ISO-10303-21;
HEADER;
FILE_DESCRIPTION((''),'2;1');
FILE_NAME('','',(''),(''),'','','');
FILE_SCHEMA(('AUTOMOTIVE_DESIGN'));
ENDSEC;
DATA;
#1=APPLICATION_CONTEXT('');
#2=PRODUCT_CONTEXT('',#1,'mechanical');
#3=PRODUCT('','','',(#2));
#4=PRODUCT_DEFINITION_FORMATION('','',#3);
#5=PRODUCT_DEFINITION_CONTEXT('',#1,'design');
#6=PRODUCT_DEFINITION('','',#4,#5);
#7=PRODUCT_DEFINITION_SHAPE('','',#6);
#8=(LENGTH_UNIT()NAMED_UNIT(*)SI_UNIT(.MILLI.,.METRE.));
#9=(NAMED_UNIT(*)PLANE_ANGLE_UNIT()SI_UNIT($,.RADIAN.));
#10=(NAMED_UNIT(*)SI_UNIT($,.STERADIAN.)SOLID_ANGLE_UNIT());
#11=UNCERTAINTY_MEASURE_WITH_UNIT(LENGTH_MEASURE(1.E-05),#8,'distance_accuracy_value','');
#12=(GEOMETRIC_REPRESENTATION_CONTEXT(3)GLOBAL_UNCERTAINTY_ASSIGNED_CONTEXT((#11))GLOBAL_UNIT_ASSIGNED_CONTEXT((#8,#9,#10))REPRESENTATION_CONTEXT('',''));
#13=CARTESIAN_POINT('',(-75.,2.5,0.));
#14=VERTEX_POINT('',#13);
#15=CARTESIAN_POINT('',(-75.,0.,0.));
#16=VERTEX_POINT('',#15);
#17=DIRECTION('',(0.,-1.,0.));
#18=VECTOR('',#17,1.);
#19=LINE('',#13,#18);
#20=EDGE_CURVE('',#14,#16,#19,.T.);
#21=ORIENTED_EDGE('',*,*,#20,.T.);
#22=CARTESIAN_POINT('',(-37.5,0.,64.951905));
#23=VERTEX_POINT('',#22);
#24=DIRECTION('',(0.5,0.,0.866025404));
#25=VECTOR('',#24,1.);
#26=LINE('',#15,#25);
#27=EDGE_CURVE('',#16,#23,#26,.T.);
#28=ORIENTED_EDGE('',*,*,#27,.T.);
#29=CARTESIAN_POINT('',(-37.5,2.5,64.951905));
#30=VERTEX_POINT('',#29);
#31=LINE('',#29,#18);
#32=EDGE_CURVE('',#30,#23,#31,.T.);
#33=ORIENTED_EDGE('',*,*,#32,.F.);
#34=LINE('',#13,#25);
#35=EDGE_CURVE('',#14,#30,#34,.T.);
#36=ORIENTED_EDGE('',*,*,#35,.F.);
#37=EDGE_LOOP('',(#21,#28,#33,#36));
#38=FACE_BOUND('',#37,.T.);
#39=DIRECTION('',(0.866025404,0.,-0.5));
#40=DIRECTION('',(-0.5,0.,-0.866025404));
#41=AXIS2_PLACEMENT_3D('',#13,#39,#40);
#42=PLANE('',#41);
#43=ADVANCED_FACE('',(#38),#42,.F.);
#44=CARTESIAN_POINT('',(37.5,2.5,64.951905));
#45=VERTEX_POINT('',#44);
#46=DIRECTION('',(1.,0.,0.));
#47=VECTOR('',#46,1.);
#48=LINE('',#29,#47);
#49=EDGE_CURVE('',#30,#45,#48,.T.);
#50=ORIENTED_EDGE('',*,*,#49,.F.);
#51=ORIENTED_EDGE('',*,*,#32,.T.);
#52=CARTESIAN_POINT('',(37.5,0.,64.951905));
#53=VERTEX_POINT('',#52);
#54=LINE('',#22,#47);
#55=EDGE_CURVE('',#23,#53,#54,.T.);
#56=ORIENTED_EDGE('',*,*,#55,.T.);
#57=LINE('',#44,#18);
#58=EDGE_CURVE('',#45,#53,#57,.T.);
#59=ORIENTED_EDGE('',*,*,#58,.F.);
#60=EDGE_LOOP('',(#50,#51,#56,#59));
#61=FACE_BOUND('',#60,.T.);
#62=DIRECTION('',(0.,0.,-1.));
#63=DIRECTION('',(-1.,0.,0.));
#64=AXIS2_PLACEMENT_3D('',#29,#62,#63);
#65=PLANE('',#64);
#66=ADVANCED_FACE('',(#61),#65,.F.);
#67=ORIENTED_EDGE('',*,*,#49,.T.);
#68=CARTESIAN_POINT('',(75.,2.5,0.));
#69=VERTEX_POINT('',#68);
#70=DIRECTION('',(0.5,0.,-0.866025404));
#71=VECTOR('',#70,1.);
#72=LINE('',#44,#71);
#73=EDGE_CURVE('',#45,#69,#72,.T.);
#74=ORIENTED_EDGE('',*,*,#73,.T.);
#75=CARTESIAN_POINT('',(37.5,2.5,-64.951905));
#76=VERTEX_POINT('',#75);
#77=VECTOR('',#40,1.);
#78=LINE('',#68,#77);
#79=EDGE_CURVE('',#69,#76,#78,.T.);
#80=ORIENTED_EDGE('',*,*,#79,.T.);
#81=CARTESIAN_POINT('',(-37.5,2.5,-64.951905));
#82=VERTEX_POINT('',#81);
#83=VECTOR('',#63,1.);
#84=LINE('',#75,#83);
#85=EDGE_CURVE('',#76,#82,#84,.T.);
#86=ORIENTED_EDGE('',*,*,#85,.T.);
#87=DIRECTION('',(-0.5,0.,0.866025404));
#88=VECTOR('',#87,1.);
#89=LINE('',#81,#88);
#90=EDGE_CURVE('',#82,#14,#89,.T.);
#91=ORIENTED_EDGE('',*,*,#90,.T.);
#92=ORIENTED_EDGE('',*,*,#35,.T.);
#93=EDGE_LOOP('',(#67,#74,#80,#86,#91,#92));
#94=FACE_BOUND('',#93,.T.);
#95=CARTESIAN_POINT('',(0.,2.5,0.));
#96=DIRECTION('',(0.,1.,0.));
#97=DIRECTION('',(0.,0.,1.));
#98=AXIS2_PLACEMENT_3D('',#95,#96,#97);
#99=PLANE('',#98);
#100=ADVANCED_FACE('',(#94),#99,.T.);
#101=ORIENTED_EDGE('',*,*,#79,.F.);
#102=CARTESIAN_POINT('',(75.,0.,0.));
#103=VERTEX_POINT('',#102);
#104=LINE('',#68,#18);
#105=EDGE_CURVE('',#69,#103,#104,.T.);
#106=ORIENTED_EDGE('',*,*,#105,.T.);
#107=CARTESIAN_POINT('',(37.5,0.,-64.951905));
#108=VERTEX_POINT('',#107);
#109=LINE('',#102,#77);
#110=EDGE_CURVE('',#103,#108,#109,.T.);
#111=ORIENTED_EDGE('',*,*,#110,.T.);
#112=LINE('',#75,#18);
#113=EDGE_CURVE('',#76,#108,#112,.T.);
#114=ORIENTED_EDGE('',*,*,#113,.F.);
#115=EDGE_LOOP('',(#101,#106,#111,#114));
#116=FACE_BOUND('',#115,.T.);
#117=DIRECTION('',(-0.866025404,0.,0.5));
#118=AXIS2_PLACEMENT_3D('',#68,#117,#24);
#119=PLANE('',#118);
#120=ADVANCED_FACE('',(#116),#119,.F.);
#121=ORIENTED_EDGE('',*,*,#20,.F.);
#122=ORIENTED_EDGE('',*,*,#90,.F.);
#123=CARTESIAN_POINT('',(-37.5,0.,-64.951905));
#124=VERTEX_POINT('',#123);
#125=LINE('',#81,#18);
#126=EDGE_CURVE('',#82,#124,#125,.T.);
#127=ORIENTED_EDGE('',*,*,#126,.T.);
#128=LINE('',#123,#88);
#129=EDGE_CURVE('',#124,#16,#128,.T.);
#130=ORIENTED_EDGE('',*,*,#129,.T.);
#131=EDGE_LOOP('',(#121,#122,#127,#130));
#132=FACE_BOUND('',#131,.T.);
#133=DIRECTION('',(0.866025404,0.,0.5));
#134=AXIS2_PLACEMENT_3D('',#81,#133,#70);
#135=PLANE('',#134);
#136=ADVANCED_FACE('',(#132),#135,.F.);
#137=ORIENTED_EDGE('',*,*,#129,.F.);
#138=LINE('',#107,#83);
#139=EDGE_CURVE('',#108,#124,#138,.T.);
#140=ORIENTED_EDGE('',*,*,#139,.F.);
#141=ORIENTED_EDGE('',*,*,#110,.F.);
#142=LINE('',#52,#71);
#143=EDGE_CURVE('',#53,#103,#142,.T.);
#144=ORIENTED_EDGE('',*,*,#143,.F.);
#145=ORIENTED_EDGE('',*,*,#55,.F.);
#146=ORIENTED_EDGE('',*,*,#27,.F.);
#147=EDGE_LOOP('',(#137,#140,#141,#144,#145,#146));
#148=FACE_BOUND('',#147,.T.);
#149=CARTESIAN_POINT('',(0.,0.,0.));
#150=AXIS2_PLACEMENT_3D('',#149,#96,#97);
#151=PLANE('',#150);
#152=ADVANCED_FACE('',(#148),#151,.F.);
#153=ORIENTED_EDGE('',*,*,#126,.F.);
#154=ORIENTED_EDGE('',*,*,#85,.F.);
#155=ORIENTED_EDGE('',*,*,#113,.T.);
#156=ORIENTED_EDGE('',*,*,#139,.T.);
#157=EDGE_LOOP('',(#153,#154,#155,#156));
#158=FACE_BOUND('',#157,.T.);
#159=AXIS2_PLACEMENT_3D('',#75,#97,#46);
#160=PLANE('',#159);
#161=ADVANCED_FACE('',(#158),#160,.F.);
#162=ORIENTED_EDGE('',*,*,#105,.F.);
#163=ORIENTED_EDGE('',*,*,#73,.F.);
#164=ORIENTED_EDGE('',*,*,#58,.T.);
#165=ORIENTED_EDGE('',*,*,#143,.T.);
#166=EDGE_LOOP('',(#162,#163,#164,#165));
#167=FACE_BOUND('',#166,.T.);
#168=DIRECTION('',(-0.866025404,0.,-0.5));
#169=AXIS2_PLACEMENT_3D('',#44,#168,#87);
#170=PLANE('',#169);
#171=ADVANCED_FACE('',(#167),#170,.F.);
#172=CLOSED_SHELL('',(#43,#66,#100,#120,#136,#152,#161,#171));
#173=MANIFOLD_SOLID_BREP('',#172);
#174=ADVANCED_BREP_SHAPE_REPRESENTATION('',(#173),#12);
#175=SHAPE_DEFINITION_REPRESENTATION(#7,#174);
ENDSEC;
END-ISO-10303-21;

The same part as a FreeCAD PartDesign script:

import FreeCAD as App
import Part
import Sketcher

V = App.Vector
Q = App.Units.Quantity

doc = App.newDocument("Part")
body = doc.addObject("PartDesign::Body", "Body")

sketch1 = doc.addObject("Sketcher::SketchObject", "Sketch")
body.addObject(sketch1)
sketch1.AttachmentSupport = (doc.XZ_Plane, [""])
sketch1.MapMode = "FlatFace"
sketch1.addGeometry(Part.LineSegment(V(75, 0, 0), V(38, -65, 0)), False)
sketch1.addGeometry(Part.LineSegment(V(38, -65, 0), V(-38, -65, 0)), False)
sketch1.addGeometry(Part.LineSegment(V(-38, -65, 0), V(-75, 0, 0)), False)
sketch1.addGeometry(Part.LineSegment(V(-75, 0, 0), V(-38, 65, 0)), False)
sketch1.addGeometry(Part.LineSegment(V(-38, 65, 0), V(38, 65, 0)), False)
sketch1.addGeometry(Part.LineSegment(V(38, 65, 0), V(75, 0, 0)), False)
sketch1.addConstraint(Sketcher.Constraint("Coincident", 0, 2, 1, 1))
sketch1.addConstraint(Sketcher.Constraint("Coincident", 1, 2, 2, 1))
sketch1.addConstraint(Sketcher.Constraint("Coincident", 2, 2, 3, 1))
sketch1.addConstraint(Sketcher.Constraint("Coincident", 3, 2, 4, 1))
sketch1.addConstraint(Sketcher.Constraint("Coincident", 4, 2, 5, 1))
sketch1.addConstraint(Sketcher.Constraint("Coincident", 5, 2, 0, 1))
sketch1.addConstraint(Sketcher.Constraint("Horizontal", 1))
sketch1.addConstraint(Sketcher.Constraint("Horizontal", 4))
sketch1.addConstraint(Sketcher.Constraint("Symmetric", 0, 2, 3, 2, -1, 1))
sketch1.addConstraint(Sketcher.Constraint("Symmetric", 2, 2, 5, 2, -1, 1))
sketch1.addConstraint(Sketcher.Constraint("PointOnObject", 2, 2, -1))
sketch1.addConstraint(Sketcher.Constraint("Parallel", 2, 5))
sketch1.addConstraint(Sketcher.Constraint("Vertical", 1, 2, 3, 2))
sketch1.addConstraint(Sketcher.Constraint("DistanceX", 1, 2, 1, 1, Q("75 mm")))
sketch1.addConstraint(Sketcher.Constraint("Angle", 0, Q("-120 deg")))
sketch1.addConstraint(Sketcher.Constraint("Distance", 0, Q("75 mm")))
pad1 = doc.addObject("PartDesign::Pad", "Pad")
body.addObject(pad1)
pad1.Profile = sketch1
pad1.Length = 2.5
pad1.Reversed = True

doc.recompute()
